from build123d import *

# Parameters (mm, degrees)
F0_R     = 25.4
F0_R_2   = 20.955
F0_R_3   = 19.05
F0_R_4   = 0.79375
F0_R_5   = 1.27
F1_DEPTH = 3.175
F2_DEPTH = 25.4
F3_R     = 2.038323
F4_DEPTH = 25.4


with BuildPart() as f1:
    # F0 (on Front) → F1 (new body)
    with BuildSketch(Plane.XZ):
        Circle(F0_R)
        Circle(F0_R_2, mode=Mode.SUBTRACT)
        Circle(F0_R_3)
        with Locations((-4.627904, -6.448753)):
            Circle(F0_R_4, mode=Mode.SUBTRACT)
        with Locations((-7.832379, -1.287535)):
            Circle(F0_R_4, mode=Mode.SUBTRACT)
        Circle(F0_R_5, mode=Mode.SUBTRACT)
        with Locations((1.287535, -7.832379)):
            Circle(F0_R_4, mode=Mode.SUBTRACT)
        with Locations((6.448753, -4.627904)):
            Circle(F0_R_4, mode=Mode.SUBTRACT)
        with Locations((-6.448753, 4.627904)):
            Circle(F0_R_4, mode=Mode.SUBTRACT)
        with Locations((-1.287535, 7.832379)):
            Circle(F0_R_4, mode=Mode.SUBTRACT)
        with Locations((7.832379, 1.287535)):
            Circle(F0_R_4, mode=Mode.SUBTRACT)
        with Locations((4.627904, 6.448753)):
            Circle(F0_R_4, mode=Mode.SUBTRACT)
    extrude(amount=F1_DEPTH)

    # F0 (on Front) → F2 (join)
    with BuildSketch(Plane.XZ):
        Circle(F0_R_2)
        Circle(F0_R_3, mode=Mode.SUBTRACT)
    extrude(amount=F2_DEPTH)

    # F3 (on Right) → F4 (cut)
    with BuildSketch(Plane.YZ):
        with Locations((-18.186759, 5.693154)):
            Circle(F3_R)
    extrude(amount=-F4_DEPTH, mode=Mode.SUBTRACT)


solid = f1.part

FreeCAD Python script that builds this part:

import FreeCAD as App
import Part
import Sketcher
Q = App.Units.Quantity

doc = App.newDocument("Part")
body = doc.addObject("PartDesign::Body", "Body")
body.AllowCompound = True

sketch1 = body.newObject("Sketcher::SketchObject", "Sketch")
sketch1.AttachmentSupport = (doc.getObject("XZ_Plane"), [""])
sketch1.MapMode = "FlatFace"
sketch1.addGeometry([
    Part.Circle(App.Vector(0, 0, 0), App.Vector(0, 0, 1), 25.4),
    Part.Circle(App.Vector(0, 0, 0), App.Vector(0, 0, 1), 21),
    Part.Circle(App.Vector(0, 0, 0), App.Vector(0, 0, 1), 19.1),
    Part.Circle(App.Vector(-4.6, -6.4, 0), App.Vector(0, 0, 1), 0.8),
    Part.Circle(App.Vector(-7.8, -1.3, 0), App.Vector(0, 0, 1), 0.8),
    Part.Circle(App.Vector(0, 0, 0), App.Vector(0, 0, 1), 1.3),
    Part.Circle(App.Vector(1.3, -7.8, 0), App.Vector(0, 0, 1), 0.8),
    Part.Circle(App.Vector(6.4, -4.6, 0), App.Vector(0, 0, 1), 0.8),
    Part.Circle(App.Vector(-6.4, 4.6, 0), App.Vector(0, 0, 1), 0.8),
    Part.Circle(App.Vector(-1.3, 7.8, 0), App.Vector(0, 0, 1), 0.8),
    Part.Circle(App.Vector(7.8, 1.3, 0), App.Vector(0, 0, 1), 0.8),
    Part.Circle(App.Vector(4.6, 6.4, 0), App.Vector(0, 0, 1), 0.8),
], False)
sketch1.addConstraint([
    Sketcher.Constraint("Coincident", 0, 3, -1, 1),
    Sketcher.Constraint("Coincident", 1, 3, -1, 1),
    Sketcher.Constraint("Coincident", 2, 3, -1, 1),
    Sketcher.Constraint("Coincident", 5, 3, -1, 1),
    Sketcher.Constraint("Equal", 3, 4),
    Sketcher.Constraint("Equal", 4, 6),
    Sketcher.Constraint("Equal", 6, 7),
    Sketcher.Constraint("Equal", 7, 8),
    Sketcher.Constraint("Equal", 8, 9),
    Sketcher.Constraint("Equal", 9, 10),
    Sketcher.Constraint("Equal", 10, 11),
    Sketcher.Constraint("Symmetric", 7, 3, 8, 3, -1, 1),
    Sketcher.Constraint("Symmetric", 6, 3, 9, 3, -1, 1),
    Sketcher.Constraint("Symmetric", 4, 3, 10, 3, -1, 1),
    Sketcher.Constraint("Symmetric", 3, 3, 11, 3, -1, 1),
    Sketcher.Constraint("Diameter", 0, Q("2 in")),
    Sketcher.Constraint("Diameter", 2, Q("1.5 in")),
    Sketcher.Constraint("Diameter", 5, Q("0.1 in")),
    Sketcher.Constraint("Diameter", 1, Q("1.65 in")),
    Sketcher.Constraint("Diameter", 3, Q("0.0625 in")),
    Sketcher.Constraint("DistanceX", 4, 3, -1, 1, 7.832379),
    Sketcher.Constraint("DistanceY", 6, 3, -1, 1, 7.832379),
    Sketcher.Constraint("DistanceX", 3, 3, 6, 3, 5.915439),
    Sketcher.Constraint("DistanceY", 4, 3, 8, 3, 5.915439),
    Sketcher.Constraint("DistanceX", 3, 3, -1, 1, 4.627904),
    Sketcher.Constraint("DistanceY", 3, 3, -1, 1, 6.448753),
    Sketcher.Constraint("DistanceY", 4, 3, -1, 1, 1.287535),
    Sketcher.Constraint("DistanceX", -1, 1, 7, 3, 6.448753),
])
pad1 = body.newObject("PartDesign::Pad", "Pad")
pad1.Profile = sketch1
pad1.Length = Q("0.125 in")

sketch2 = body.newObject("Sketcher::SketchObject", "Sketch001")
sketch2.AttachmentSupport = (doc.getObject("XZ_Plane"), [""])
sketch2.MapMode = "FlatFace"
sketch2.addGeometry([
    Part.Circle(App.Vector(0, 0, 0), App.Vector(0, 0, 1), 21),
    Part.Circle(App.Vector(0, 0, 0), App.Vector(0, 0, 1), 19),
], False)
sketch2.addConstraint([
    Sketcher.Constraint("Coincident", 0, 3, -1, 1),
    Sketcher.Constraint("Coincident", 1, 3, -1, 1),
    Sketcher.Constraint("Diameter", 1, Q("1.5 in")),
    Sketcher.Constraint("Diameter", 0, Q("1.65 in")),
])
pad2 = body.newObject("PartDesign::Pad", "Pad001")
pad2.Profile = sketch2
pad2.Length = Q("1 in")

sketch3 = body.newObject("Sketcher::SketchObject", "Sketch002")
sketch3.AttachmentSupport = (doc.getObject("YZ_Plane"), [""])
sketch3.MapMode = "FlatFace"
sketch3.addGeometry(Part.Circle(App.Vector(-18.2, 5.7, 0), App.Vector(0, 0, 1), 2), False)
sketch3.addConstraint([
    Sketcher.Constraint("Diameter", 0, 4.076646),
    Sketcher.Constraint("DistanceX", 0, 3, -1, 1, 18.186759),
    Sketcher.Constraint("DistanceY", -1, 1, 0, 3, 5.693154),
])
pocket1 = body.newObject("PartDesign::Pocket", "Pocket")
pocket1.Profile = sketch3
pocket1.Length = Q("1 in")

doc.recompute()
